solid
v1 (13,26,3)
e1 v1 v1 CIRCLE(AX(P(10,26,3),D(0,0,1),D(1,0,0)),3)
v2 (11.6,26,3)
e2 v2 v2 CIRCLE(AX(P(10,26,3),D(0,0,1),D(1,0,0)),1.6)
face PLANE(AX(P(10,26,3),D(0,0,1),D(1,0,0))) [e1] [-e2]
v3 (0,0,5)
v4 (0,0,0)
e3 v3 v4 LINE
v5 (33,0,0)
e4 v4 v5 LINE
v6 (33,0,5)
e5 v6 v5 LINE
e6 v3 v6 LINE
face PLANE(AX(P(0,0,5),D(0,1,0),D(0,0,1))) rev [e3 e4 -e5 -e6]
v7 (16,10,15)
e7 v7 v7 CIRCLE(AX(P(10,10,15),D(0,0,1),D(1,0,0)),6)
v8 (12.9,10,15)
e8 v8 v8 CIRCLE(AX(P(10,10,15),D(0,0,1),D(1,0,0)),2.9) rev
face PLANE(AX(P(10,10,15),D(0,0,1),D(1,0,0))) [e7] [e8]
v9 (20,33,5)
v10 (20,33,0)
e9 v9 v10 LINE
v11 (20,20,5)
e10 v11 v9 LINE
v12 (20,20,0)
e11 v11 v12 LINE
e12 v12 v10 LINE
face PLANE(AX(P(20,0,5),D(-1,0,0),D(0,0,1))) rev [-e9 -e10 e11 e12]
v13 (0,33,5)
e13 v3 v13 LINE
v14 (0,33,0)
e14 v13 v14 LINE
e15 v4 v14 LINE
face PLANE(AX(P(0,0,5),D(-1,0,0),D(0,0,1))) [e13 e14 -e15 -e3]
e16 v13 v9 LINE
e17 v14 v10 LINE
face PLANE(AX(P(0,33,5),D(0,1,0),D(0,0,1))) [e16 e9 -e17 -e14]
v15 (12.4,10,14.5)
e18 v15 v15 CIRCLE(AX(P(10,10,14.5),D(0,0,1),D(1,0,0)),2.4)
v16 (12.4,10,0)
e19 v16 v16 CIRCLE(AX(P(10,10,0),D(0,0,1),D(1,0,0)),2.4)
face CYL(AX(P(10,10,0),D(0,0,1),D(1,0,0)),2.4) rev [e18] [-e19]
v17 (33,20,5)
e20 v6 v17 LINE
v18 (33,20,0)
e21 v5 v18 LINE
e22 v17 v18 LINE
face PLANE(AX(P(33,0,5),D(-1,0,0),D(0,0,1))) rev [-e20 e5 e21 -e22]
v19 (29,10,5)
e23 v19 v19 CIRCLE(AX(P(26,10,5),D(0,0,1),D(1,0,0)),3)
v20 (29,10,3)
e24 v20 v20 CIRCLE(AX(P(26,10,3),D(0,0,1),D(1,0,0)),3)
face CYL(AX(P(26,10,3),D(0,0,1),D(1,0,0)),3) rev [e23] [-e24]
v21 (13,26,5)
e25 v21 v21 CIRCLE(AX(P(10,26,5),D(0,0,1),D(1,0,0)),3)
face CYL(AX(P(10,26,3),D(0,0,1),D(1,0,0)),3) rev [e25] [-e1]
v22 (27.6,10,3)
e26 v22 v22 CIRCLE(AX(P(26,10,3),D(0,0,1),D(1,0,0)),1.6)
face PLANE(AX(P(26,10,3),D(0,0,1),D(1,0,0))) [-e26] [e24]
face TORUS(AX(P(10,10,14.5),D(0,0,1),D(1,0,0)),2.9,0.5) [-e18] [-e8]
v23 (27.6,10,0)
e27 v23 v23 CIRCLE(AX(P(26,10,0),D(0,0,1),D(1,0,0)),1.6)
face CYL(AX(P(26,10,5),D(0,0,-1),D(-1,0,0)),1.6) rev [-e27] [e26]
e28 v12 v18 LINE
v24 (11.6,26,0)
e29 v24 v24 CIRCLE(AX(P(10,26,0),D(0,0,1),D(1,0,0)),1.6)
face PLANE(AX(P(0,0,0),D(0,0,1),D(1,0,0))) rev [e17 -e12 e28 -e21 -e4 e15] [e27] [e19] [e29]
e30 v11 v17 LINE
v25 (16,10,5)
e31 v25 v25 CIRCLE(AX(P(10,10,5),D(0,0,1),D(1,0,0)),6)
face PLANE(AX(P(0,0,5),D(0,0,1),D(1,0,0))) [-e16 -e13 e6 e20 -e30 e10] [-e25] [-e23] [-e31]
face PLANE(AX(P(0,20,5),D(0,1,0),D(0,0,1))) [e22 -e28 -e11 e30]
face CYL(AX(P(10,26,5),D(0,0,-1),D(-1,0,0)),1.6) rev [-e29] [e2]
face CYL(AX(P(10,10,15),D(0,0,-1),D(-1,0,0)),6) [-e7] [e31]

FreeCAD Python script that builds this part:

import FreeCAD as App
import Part
import Sketcher
from FreeCAD import Vector
Q = App.Units.Quantity


def edges_at(feature, points):
    """Names of the edges that pass closest to the given points."""
    edges = feature.Shape.Edges
    near = lambda p: min(range(len(edges)), key=lambda i: edges[i].distToShape(Part.Vertex(*p))[0])
    return sorted({f"Edge{near(p) + 1}" for p in points})

doc = App.newDocument("Part")
body = doc.addObject("PartDesign::Body", "Body")

sketch1 = body.newObject("Sketcher::SketchObject", "Sketch")
sketch1.AttachmentSupport = (doc.getObject("XY_Plane"), [""])
sketch1.MapMode = "FlatFace"
sketch1.addGeometry([
    Part.LineSegment(Vector(0, 0, 0), Vector(33, 0, 0)),
    Part.LineSegment(Vector(33, 0, 0), Vector(33, 20, 0)),
    Part.LineSegment(Vector(33, 20, 0), Vector(20, 20, 0)),
    Part.LineSegment(Vector(20, 20, 0), Vector(20, 33, 0)),
    Part.LineSegment(Vector(20, 33, 0), Vector(0, 33, 0)),
    Part.LineSegment(Vector(0, 33, 0), Vector(0, 0, 0)),
    Part.Circle(Vector(26, 10, 0), Vector(0, 0, 1), 1.6),
    Part.Circle(Vector(10, 26, 0), Vector(0, 0, 1), 1.6),
], False)
sketch1.addConstraint([
    Sketcher.Constraint("Coincident", 0, 2, 1, 1),
    Sketcher.Constraint("Coincident", 1, 2, 2, 1),
    Sketcher.Constraint("Coincident", 2, 2, 3, 1),
    Sketcher.Constraint("Coincident", 3, 2, 4, 1),
    Sketcher.Constraint("Coincident", 4, 2, 5, 1),
    Sketcher.Constraint("Coincident", 5, 2, 0, 1),
    Sketcher.Constraint("Horizontal", 0),
    Sketcher.Constraint("Vertical", 1),
    Sketcher.Constraint("Horizontal", 2),
    Sketcher.Constraint("Vertical", 3),
    Sketcher.Constraint("Horizontal", 4),
    Sketcher.Constraint("Vertical", 5),
    Sketcher.Constraint("Coincident", 5, 2, -1, 1),
    Sketcher.Constraint("Equal", 6, 7),
    Sketcher.Constraint("Equal", 4, 1),
    Sketcher.Constraint("Equal", 2, 3),
    Sketcher.Constraint("Diameter", 6, Q("3.2 mm")),
    Sketcher.Constraint("DistanceX", 0, 1, 0, 2, Q("33 mm")),
    Sketcher.Constraint("DistanceX", 2, 2, 2, 1, Q("13 mm")),
    Sketcher.Constraint("DistanceX", -1, 1, 6, 3, Q("26 mm")),
    Sketcher.Constraint("DistanceY", -1, 1, 6, 3, Q("10 mm")),
    Sketcher.Constraint("DistanceX", -1, 1, 7, 3, Q("10 mm")),
    Sketcher.Constraint("DistanceY", -1, 1, 7, 3, Q("26 mm")),
])
pad1 = body.newObject("PartDesign::Pad", "Pad")
pad1.Profile = sketch1
pad1.Length = 5

sketch2 = body.newObject("Sketcher::SketchObject", "Sketch001")
sketch2.AttachmentSupport = (doc.getObject("XY_Plane"), [""])
sketch2.MapMode = "FlatFace"
sketch2.AttachmentOffset = App.Placement(Vector(0, 0, 5), App.Rotation())
sketch2.addGeometry(Part.Circle(Vector(10, 10, 0), Vector(0, 0, 1), 6), False)
sketch2.addConstraint([
    Sketcher.Constraint("Diameter", 0, Q("12 mm")),
    Sketcher.Constraint("DistanceX", -1, 1, 0, 3, Q("10 mm")),
    Sketcher.Constraint("DistanceY", -1, 1, 0, 3, Q("10 mm")),
])
pad2 = body.newObject("PartDesign::Pad", "Pad001")
pad2.Profile = sketch2
pad2.Length = 10

sketch3 = body.newObject("Sketcher::SketchObject", "Sketch002")
sketch3.AttachmentSupport = (doc.getObject("XY_Plane"), [""])
sketch3.MapMode = "FlatFace"
sketch3.AttachmentOffset = App.Placement(Vector(0, 0, 15), App.Rotation())
sketch3.addGeometry(Part.Circle(Vector(10, 10, 0), Vector(0, 0, 1), 2.4), False)
sketch3.addConstraint([
    Sketcher.Constraint("Diameter", 0, Q("4.8 mm")),
    Sketcher.Constraint("DistanceX", -1, 1, 0, 3, Q("10 mm")),
    Sketcher.Constraint("DistanceY", -1, 1, 0, 3, Q("10 mm")),
])
pocket1 = body.newObject("PartDesign::Pocket", "Pocket")
pocket1.Profile = sketch3
pocket1.Type = "ThroughAll"

sketch4 = body.newObject("Sketcher::SketchObject", "Sketch003")
sketch4.AttachmentSupport = (doc.getObject("XY_Plane"), [""])
sketch4.MapMode = "FlatFace"
sketch4.AttachmentOffset = App.Placement(Vector(0, 0, 5), App.Rotation())
sketch4.addGeometry([
    Part.Circle(Vector(10, 26, 0), Vector(0, 0, 1), 3),
    Part.Circle(Vector(26, 10, 0), Vector(0, 0, 1), 3),
], False)
sketch4.addConstraint([
    Sketcher.Constraint("Equal", 0, 1),
    Sketcher.Constraint("Diameter", 0, Q("6 mm")),
    Sketcher.Constraint("DistanceX", -1, 1, 0, 3, Q("10 mm")),
    Sketcher.Constraint("DistanceY", -1, 1, 0, 3, Q("26 mm")),
    Sketcher.Constraint("DistanceX", -1, 1, 1, 3, Q("26 mm")),
    Sketcher.Constraint("DistanceY", -1, 1, 1, 3, Q("10 mm")),
])
pocket2 = body.newObject("PartDesign::Pocket", "Pocket001")
pocket2.Profile = sketch4
pocket2.Length = 2
doc.recompute()

fillet = body.newObject("PartDesign::Fillet", "Fillet")
fillet.Base = (pocket2, edges_at(pocket2, [(7.6, 10, 15)]))
fillet.Radius = 0.5

doc.recompute()
